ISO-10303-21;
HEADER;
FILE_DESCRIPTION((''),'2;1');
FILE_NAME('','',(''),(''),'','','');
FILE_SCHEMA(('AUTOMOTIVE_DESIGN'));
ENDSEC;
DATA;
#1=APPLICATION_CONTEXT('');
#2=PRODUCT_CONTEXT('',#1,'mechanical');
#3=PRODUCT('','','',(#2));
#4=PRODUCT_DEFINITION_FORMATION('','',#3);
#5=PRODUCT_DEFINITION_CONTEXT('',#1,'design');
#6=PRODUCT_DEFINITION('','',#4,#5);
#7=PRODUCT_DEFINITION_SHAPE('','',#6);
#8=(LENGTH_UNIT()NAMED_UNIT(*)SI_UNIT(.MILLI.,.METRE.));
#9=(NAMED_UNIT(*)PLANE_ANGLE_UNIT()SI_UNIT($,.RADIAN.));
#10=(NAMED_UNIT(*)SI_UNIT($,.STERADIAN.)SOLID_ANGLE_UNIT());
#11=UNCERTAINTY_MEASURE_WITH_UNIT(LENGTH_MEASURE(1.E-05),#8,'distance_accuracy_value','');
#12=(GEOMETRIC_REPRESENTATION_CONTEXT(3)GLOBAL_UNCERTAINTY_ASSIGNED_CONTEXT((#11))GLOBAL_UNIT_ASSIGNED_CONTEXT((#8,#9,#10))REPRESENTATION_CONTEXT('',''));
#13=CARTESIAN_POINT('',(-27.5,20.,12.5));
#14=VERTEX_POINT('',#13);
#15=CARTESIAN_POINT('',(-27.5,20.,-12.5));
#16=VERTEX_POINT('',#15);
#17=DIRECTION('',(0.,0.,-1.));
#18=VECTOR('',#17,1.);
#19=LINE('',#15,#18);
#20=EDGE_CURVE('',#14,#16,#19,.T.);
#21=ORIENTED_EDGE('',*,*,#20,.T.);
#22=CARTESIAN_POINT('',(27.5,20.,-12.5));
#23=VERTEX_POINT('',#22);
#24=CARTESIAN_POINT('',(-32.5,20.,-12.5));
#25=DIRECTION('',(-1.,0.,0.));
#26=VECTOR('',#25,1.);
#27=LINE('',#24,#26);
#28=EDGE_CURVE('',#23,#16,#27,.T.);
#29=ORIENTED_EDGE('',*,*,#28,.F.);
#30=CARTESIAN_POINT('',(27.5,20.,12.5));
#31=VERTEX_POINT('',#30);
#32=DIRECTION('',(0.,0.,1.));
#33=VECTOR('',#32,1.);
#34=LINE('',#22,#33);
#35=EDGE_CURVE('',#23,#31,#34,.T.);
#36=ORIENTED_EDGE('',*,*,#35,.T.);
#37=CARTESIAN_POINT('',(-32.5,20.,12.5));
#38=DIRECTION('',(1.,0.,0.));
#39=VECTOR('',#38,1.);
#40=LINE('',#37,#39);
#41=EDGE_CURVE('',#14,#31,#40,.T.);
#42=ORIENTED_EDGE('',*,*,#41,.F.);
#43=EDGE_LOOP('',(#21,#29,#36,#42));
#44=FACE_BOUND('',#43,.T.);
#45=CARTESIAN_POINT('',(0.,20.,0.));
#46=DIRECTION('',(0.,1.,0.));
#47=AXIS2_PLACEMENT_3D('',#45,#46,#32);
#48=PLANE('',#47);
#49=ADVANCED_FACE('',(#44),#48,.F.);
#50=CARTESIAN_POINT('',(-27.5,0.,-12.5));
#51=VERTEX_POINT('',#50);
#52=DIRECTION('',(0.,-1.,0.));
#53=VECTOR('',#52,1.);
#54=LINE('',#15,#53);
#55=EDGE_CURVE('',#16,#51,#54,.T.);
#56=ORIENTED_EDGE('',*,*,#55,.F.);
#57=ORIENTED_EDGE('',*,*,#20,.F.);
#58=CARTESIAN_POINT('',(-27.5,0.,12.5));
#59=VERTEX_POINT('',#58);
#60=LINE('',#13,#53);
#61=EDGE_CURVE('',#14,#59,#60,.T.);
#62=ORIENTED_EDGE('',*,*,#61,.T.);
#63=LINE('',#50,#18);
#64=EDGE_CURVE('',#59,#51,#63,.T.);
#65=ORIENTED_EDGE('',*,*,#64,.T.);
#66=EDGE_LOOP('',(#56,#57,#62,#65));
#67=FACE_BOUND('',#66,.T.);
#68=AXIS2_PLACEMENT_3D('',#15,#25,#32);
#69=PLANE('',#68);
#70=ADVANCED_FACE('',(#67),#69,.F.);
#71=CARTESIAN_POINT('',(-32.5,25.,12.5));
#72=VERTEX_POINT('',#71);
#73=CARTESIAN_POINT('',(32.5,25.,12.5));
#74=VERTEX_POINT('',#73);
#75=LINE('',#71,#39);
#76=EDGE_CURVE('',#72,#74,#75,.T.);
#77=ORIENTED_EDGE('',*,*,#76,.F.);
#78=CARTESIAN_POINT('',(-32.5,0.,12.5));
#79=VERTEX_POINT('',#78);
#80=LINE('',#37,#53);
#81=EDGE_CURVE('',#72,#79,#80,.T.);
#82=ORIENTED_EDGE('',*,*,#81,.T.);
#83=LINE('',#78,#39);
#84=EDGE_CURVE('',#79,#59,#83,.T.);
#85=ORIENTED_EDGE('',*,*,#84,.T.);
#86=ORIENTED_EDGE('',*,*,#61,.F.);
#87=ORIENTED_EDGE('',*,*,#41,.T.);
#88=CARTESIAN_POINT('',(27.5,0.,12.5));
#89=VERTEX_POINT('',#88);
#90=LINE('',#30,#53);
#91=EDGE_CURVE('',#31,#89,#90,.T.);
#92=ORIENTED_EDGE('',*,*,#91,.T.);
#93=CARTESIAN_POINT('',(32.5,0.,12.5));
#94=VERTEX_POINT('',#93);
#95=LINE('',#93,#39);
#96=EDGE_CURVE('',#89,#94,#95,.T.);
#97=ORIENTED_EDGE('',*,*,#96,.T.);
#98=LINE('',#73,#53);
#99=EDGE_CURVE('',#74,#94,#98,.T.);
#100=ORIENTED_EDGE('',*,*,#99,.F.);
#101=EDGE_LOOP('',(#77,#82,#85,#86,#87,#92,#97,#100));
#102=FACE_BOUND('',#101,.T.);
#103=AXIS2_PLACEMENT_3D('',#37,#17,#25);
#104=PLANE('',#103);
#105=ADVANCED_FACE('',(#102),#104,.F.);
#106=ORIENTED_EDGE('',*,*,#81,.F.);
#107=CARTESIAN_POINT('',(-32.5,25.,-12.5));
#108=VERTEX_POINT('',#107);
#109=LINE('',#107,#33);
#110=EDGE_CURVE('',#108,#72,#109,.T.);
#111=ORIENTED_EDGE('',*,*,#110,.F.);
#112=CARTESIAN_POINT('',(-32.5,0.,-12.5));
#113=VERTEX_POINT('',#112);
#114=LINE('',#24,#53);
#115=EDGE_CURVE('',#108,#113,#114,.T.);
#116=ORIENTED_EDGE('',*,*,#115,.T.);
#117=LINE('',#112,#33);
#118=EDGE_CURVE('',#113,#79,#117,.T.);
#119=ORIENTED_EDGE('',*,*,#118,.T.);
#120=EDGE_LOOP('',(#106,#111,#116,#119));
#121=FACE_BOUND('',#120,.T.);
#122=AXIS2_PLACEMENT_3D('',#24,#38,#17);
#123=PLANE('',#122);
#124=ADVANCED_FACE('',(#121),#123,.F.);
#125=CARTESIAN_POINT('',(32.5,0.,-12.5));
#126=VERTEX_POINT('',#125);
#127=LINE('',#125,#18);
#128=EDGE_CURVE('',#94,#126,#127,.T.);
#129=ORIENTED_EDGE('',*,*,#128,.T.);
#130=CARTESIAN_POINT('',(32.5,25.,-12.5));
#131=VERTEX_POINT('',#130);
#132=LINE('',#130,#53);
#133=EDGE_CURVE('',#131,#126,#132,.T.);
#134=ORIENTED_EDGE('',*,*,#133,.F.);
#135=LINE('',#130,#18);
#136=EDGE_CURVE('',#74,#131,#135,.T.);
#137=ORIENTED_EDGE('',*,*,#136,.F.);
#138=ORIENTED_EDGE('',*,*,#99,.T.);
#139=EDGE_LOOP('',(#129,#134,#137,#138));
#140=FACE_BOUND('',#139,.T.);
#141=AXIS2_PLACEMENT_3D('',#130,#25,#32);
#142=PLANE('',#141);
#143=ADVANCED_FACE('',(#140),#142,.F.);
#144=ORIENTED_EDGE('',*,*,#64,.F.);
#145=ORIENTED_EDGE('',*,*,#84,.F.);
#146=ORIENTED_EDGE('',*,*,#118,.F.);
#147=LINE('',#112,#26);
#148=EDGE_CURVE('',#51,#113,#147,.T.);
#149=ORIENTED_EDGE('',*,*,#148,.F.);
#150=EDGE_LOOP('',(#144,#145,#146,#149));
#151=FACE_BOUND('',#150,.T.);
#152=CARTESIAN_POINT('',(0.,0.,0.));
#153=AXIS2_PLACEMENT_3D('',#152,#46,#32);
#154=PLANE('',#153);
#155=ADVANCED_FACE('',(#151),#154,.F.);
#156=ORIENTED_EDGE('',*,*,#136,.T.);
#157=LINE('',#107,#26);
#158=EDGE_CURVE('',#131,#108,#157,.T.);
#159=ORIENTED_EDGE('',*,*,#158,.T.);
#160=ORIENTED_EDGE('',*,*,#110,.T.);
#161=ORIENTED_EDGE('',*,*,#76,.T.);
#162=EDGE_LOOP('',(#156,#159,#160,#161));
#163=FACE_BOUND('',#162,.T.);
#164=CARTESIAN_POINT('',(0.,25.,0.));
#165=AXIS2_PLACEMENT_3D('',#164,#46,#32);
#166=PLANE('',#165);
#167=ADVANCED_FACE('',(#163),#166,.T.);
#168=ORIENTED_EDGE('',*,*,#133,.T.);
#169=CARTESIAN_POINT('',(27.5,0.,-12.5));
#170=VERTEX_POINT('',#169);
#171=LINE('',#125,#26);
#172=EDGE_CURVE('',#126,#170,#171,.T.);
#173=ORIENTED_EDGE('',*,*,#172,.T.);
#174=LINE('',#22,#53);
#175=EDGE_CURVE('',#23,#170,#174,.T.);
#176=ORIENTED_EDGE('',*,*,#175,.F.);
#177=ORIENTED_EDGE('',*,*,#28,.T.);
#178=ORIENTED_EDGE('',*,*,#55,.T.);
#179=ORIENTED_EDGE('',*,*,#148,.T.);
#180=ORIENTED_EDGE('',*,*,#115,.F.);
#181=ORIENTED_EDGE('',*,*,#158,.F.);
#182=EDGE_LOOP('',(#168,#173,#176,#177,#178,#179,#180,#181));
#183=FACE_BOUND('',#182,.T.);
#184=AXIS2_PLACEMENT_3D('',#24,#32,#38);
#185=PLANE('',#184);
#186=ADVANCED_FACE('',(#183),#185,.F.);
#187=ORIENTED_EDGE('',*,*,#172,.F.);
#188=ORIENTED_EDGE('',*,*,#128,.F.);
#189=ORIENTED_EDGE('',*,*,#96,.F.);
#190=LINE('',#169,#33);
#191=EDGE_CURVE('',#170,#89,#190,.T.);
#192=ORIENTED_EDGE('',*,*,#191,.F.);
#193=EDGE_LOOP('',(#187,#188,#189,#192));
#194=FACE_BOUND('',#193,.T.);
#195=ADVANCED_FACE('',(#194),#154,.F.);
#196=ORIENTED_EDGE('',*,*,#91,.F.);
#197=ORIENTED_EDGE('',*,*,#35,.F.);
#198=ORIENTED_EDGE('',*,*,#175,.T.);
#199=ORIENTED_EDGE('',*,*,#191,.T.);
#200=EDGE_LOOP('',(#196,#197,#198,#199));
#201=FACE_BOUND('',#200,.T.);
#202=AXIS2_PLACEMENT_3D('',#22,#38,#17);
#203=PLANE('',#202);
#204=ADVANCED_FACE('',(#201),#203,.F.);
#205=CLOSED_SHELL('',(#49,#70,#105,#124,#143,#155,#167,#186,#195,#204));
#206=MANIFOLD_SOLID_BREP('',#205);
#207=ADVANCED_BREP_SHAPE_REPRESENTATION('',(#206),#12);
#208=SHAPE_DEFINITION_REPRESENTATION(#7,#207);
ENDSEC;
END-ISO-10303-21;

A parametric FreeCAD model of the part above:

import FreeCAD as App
import Part
import Sketcher
Q = App.Units.Quantity


def add_polygon(sketch, points):
    """Adds a closed chain of lines whose ends are joined by coincident constraints."""
    first, n = sketch.GeometryCount, len(points)
    for a, b in zip(points, points[1:] + points[:1]):
        sketch.addGeometry(Part.LineSegment(App.Vector(*a, 0), App.Vector(*b, 0)), False)
    for i in range(n):
        sketch.addConstraint(Sketcher.Constraint("Coincident", first + i, 2, first + (i + 1) % n, 1))

doc = App.newDocument("Part")
params = doc.addObject("Spreadsheet::Sheet", "Params")
for row, (alias, value) in enumerate([
    ("sketch1_width", "5 mm"),
    ("sketch1_height", "25 mm"),
    ("pad1_length", "20 mm"),
    ("sketch2_width", "5 mm"),
    ("sketch2_height", "25 mm"),
    ("pad2_length", "20 mm"),
    ("sketch3_width", "65 mm"),
    ("sketch3_height", "25 mm"),
    ("pad3_length", "5 mm"),
], start=1):
    params.set(f"A{row}", alias)
    params.set(f"B{row}", "=" + value)
    params.setAlias(f"B{row}", alias)

body = doc.addObject("PartDesign::Body", "Body")

# Sketch on XZ plane
sketch1 = body.newObject("Sketcher::SketchObject", "Sketch")
sketch1.AttachmentSupport = (doc.getObject("XZ_Plane"), [""])
sketch1.MapMode = "FlatFace"
add_polygon(sketch1, [(28, -12), (28, 12), (32, 12), (32, -12)])  # lines 0-3
sketch1.addConstraint([
    Sketcher.Constraint("Vertical", 0),
    Sketcher.Constraint("Horizontal", 1),
    Sketcher.Constraint("Vertical", 2),
    Sketcher.Constraint("Horizontal", 3),
    Sketcher.Constraint("DistanceX", 1, 1, 1, 2, Q("5 mm")),
    Sketcher.Constraint("DistanceY", 0, 1, 0, 2, Q("25 mm")),
    Sketcher.Constraint("DistanceX", -1, 1, 0, 2, Q("27.5 mm")),
    Sketcher.Constraint("DistanceY", -1, 1, 0, 2, Q("12.5 mm")),
])
sketch1.setExpression("Constraints[8]", "Params.sketch1_width")
sketch1.setExpression("Constraints[9]", "Params.sketch1_height")
pad1 = body.newObject("PartDesign::Pad", "Pad")
pad1.Profile = sketch1
pad1.setExpression("Length", "Params.pad1_length")
pad1.Reversed = True
body2 = doc.addObject("PartDesign::Body", "Body001")

# Sketch on XZ plane
sketch2 = body2.newObject("Sketcher::SketchObject", "Sketch001")
sketch2.AttachmentSupport = (doc.getObject("XZ_Plane001"), [""])
sketch2.MapMode = "FlatFace"
add_polygon(sketch2, [(-32, -12), (-32, 12), (-28, 12), (-28, -12)])  # lines 0-3
sketch2.addConstraint([
    Sketcher.Constraint("Vertical", 0),
    Sketcher.Constraint("Horizontal", 1),
    Sketcher.Constraint("Vertical", 2),
    Sketcher.Constraint("Horizontal", 3),
    Sketcher.Constraint("DistanceX", 1, 1, 1, 2, Q("5 mm")),
    Sketcher.Constraint("DistanceY", 0, 1, 0, 2, Q("25 mm")),
    Sketcher.Constraint("DistanceX", 0, 2, -1, 1, Q("32.5 mm")),
    Sketcher.Constraint("DistanceY", -1, 1, 0, 2, Q("12.5 mm")),
])
sketch2.setExpression("Constraints[8]", "Params.sketch2_width")
sketch2.setExpression("Constraints[9]", "Params.sketch2_height")
pad2 = body2.newObject("PartDesign::Pad", "Pad001")
pad2.Profile = sketch2
pad2.setExpression("Length", "Params.pad2_length")
pad2.Reversed = True
body.AllowCompound = True
doc.recompute()

boolean = body.newObject("PartDesign::Boolean", "Boolean")
boolean.Type = "Fuse"
boolean.addObjects([body2])

# Sketch on XZ plane
sketch3 = body.newObject("Sketcher::SketchObject", "Sketch002")
sketch3.AttachmentSupport = (doc.getObject("XZ_Plane"), [""])
sketch3.MapMode = "FlatFace"
sketch3.AttachmentOffset = App.Placement(App.Vector(0, 0, -20), App.Rotation())
add_polygon(sketch3, [(-32, -12), (-32, 12), (32, 12), (32, -12)])  # lines 0-3
sketch3.addConstraint([
    Sketcher.Constraint("Vertical", 0),
    Sketcher.Constraint("Horizontal", 1),
    Sketcher.Constraint("Vertical", 2),
    Sketcher.Constraint("Horizontal", 3),
    Sketcher.Constraint("Symmetric", 0, 2, 2, 2, -1, 1),
    Sketcher.Constraint("DistanceX", 1, 1, 1, 2, Q("65 mm")),
    Sketcher.Constraint("DistanceY", 0, 1, 0, 2, Q("25 mm")),
])
sketch3.setExpression("Constraints[9]", "Params.sketch3_width")
sketch3.setExpression("Constraints[10]", "Params.sketch3_height")
pad3 = body.newObject("PartDesign::Pad", "Pad002")
pad3.Profile = sketch3
pad3.setExpression("Length", "Params.pad3_length")
pad3.Reversed = True

doc.recompute()
